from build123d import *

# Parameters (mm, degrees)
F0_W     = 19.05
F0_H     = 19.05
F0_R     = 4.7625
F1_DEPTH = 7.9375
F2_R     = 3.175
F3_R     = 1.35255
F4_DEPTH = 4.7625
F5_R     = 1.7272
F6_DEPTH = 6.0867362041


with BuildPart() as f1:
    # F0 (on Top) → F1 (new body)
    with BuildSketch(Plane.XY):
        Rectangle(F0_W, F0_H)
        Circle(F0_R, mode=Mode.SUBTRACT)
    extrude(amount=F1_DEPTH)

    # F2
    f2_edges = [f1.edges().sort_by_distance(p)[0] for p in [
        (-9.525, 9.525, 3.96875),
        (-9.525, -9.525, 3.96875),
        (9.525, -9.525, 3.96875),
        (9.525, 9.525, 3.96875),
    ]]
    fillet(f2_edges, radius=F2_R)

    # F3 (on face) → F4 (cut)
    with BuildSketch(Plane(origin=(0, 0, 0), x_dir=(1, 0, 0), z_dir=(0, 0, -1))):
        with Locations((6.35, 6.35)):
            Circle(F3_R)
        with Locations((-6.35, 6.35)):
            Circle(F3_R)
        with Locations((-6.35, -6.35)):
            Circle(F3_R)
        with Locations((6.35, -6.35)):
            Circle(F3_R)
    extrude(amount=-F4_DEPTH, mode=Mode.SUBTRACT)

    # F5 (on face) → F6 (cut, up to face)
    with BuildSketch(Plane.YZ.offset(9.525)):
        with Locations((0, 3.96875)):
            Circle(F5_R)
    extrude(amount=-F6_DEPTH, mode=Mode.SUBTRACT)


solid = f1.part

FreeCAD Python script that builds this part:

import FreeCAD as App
import Part
import Sketcher

V = App.Vector
Q = App.Units.Quantity


def edges_at(feature, points):
    """Names of the edges that pass closest to the given points."""
    edges = feature.Shape.Edges
    near = lambda p: min(range(len(edges)), key=lambda i: edges[i].distToShape(Part.Vertex(*p))[0])
    return sorted({f"Edge{near(p) + 1}" for p in points})

doc = App.newDocument("Part")
params = doc.addObject("Spreadsheet::Sheet", "Params")
for row, (alias, value) in enumerate([
    ("sketch1_diameter", "0.375 in"),
    ("sketch1_width", "0.75 in"),
    ("pad1_length", "0.3125 in"),
    ("fillet_radius", "0.125 in"),
    ("pocket1_length", "0.1875 in"),
    ("sketch3_diameter", "0.136 in"),
    ("pocket2_length", "6.086736 mm"),
], start=1):
    params.set(f"A{row}", alias)
    params.set(f"B{row}", "=" + value)
    params.setAlias(f"B{row}", alias)

body = doc.addObject("PartDesign::Body", "Body")

# Sketch on XY plane
sketch1 = doc.addObject("Sketcher::SketchObject", "Sketch")
body.addObject(sketch1)
sketch1.AttachmentSupport = (doc.XY_Plane, [""])
sketch1.MapMode = "FlatFace"
sketch1.addGeometry([
    Part.LineSegment(V(-9.5, 9.5, 0), V(-9.5, -9.5, 0)),  # 0
    Part.LineSegment(V(-9.5, -9.5, 0), V(9.5, -9.5, 0)),  # 1
    Part.LineSegment(V(9.5, -9.5, 0), V(9.5, 9.5, 0)),  # 2
    Part.LineSegment(V(9.5, 9.5, 0), V(-9.5, 9.5, 0)),  # 3
    Part.Circle(V(0, 0, 0), V(0, 0, 1), 4.8),  # 4
], False)
sketch1.addConstraint([
    Sketcher.Constraint("Coincident", 0, 2, 1, 1),
    Sketcher.Constraint("Coincident", 1, 2, 2, 1),
    Sketcher.Constraint("Coincident", 2, 2, 3, 1),
    Sketcher.Constraint("Coincident", 3, 2, 0, 1),
    Sketcher.Constraint("Vertical", 0),
    Sketcher.Constraint("Horizontal", 1),
    Sketcher.Constraint("Vertical", 2),
    Sketcher.Constraint("Horizontal", 3),
    Sketcher.Constraint("Coincident", 4, 3, -1, 1),
    Sketcher.Constraint("Symmetric", 0, 2, 2, 2, -1, 1),
    Sketcher.Constraint("Equal", 3, 0),
    Sketcher.Constraint("Diameter", 4, Q("0.375 in")),
    Sketcher.Constraint("DistanceX", 1, 1, 1, 2, Q("0.75 in")),
])
sketch1.setExpression("Constraints[11]", "Params.sketch1_diameter")
sketch1.setExpression("Constraints[12]", "Params.sketch1_width")
pad1 = doc.addObject("PartDesign::Pad", "Pad")
body.addObject(pad1)
pad1.Profile = sketch1
pad1.setExpression("Length", "Params.pad1_length")
doc.recompute()

fillet = doc.addObject("PartDesign::Fillet", "Fillet")
body.addObject(fillet)
fillet.Base = (pad1, edges_at(pad1, [
    (-9.525, 9.525, 3.969),
    (-9.525, -9.525, 3.969),
    (9.525, -9.525, 3.969),
    (9.525, 9.525, 3.969),
]))
fillet.setExpression("Radius", "Params.fillet_radius")

# Sketch on XY plane
sketch2 = doc.addObject("Sketcher::SketchObject", "Sketch001")
body.addObject(sketch2)
sketch2.AttachmentSupport = (doc.XY_Plane, [""])
sketch2.MapMode = "FlatFace"
sketch2.addGeometry([
    Part.Circle(V(6.3, -6.3, 0), V(0, 0, 1), 1.4),
    Part.Circle(V(-6.3, -6.3, 0), V(0, 0, 1), 1.4),
    Part.Circle(V(-6.3, 6.3, 0), V(0, 0, 1), 1.4),
    Part.Circle(V(6.3, 6.3, 0), V(0, 0, 1), 1.4),
], False)
sketch2.addConstraint([
    Sketcher.Constraint("Equal", 0, 1),
    Sketcher.Constraint("Equal", 1, 2),
    Sketcher.Constraint("Equal", 2, 3),
    Sketcher.Constraint("Symmetric", 0, 3, 2, 3, -1, 1),
    Sketcher.Constraint("Symmetric", 1, 3, 3, 3, -1, 1),
    Sketcher.Constraint("Symmetric", 0, 3, 1, 3, -2),
    Sketcher.Constraint("Diameter", 0, Q("0.1065 in")),
    Sketcher.Constraint("DistanceX", 1, 3, 0, 3, Q("0.5 in")),
    Sketcher.Constraint("DistanceY", 1, 3, 2, 3, Q("0.5 in")),
])
pocket1 = doc.addObject("PartDesign::Pocket", "Pocket")
body.addObject(pocket1)
pocket1.Profile = sketch2
pocket1.setExpression("Length", "Params.pocket1_length")
pocket1.Reversed = True

# Sketch on YZ plane
sketch3 = doc.addObject("Sketcher::SketchObject", "Sketch002")
body.addObject(sketch3)
sketch3.AttachmentSupport = (doc.YZ_Plane, [""])
sketch3.MapMode = "FlatFace"
sketch3.AttachmentOffset = App.Placement(V(0, 0, 0.375 * 25.4), App.Rotation())
sketch3.addGeometry(Part.Circle(V(0, 4, 0), V(0, 0, 1), 1.7), False)
sketch3.addConstraint([
    Sketcher.Constraint("PointOnObject", 0, 3, -2),
    Sketcher.Constraint("Diameter", 0, Q("0.136 in")),
    Sketcher.Constraint("DistanceY", -1, 1, 0, 3, Q("0.15625 in")),
])
sketch3.setExpression("Constraints[1]", "Params.sketch3_diameter")
pocket2 = doc.addObject("PartDesign::Pocket", "Pocket001")
body.addObject(pocket2)
pocket2.Profile = sketch3
pocket2.setExpression("Length", "Params.pocket2_length")

doc.recompute()
